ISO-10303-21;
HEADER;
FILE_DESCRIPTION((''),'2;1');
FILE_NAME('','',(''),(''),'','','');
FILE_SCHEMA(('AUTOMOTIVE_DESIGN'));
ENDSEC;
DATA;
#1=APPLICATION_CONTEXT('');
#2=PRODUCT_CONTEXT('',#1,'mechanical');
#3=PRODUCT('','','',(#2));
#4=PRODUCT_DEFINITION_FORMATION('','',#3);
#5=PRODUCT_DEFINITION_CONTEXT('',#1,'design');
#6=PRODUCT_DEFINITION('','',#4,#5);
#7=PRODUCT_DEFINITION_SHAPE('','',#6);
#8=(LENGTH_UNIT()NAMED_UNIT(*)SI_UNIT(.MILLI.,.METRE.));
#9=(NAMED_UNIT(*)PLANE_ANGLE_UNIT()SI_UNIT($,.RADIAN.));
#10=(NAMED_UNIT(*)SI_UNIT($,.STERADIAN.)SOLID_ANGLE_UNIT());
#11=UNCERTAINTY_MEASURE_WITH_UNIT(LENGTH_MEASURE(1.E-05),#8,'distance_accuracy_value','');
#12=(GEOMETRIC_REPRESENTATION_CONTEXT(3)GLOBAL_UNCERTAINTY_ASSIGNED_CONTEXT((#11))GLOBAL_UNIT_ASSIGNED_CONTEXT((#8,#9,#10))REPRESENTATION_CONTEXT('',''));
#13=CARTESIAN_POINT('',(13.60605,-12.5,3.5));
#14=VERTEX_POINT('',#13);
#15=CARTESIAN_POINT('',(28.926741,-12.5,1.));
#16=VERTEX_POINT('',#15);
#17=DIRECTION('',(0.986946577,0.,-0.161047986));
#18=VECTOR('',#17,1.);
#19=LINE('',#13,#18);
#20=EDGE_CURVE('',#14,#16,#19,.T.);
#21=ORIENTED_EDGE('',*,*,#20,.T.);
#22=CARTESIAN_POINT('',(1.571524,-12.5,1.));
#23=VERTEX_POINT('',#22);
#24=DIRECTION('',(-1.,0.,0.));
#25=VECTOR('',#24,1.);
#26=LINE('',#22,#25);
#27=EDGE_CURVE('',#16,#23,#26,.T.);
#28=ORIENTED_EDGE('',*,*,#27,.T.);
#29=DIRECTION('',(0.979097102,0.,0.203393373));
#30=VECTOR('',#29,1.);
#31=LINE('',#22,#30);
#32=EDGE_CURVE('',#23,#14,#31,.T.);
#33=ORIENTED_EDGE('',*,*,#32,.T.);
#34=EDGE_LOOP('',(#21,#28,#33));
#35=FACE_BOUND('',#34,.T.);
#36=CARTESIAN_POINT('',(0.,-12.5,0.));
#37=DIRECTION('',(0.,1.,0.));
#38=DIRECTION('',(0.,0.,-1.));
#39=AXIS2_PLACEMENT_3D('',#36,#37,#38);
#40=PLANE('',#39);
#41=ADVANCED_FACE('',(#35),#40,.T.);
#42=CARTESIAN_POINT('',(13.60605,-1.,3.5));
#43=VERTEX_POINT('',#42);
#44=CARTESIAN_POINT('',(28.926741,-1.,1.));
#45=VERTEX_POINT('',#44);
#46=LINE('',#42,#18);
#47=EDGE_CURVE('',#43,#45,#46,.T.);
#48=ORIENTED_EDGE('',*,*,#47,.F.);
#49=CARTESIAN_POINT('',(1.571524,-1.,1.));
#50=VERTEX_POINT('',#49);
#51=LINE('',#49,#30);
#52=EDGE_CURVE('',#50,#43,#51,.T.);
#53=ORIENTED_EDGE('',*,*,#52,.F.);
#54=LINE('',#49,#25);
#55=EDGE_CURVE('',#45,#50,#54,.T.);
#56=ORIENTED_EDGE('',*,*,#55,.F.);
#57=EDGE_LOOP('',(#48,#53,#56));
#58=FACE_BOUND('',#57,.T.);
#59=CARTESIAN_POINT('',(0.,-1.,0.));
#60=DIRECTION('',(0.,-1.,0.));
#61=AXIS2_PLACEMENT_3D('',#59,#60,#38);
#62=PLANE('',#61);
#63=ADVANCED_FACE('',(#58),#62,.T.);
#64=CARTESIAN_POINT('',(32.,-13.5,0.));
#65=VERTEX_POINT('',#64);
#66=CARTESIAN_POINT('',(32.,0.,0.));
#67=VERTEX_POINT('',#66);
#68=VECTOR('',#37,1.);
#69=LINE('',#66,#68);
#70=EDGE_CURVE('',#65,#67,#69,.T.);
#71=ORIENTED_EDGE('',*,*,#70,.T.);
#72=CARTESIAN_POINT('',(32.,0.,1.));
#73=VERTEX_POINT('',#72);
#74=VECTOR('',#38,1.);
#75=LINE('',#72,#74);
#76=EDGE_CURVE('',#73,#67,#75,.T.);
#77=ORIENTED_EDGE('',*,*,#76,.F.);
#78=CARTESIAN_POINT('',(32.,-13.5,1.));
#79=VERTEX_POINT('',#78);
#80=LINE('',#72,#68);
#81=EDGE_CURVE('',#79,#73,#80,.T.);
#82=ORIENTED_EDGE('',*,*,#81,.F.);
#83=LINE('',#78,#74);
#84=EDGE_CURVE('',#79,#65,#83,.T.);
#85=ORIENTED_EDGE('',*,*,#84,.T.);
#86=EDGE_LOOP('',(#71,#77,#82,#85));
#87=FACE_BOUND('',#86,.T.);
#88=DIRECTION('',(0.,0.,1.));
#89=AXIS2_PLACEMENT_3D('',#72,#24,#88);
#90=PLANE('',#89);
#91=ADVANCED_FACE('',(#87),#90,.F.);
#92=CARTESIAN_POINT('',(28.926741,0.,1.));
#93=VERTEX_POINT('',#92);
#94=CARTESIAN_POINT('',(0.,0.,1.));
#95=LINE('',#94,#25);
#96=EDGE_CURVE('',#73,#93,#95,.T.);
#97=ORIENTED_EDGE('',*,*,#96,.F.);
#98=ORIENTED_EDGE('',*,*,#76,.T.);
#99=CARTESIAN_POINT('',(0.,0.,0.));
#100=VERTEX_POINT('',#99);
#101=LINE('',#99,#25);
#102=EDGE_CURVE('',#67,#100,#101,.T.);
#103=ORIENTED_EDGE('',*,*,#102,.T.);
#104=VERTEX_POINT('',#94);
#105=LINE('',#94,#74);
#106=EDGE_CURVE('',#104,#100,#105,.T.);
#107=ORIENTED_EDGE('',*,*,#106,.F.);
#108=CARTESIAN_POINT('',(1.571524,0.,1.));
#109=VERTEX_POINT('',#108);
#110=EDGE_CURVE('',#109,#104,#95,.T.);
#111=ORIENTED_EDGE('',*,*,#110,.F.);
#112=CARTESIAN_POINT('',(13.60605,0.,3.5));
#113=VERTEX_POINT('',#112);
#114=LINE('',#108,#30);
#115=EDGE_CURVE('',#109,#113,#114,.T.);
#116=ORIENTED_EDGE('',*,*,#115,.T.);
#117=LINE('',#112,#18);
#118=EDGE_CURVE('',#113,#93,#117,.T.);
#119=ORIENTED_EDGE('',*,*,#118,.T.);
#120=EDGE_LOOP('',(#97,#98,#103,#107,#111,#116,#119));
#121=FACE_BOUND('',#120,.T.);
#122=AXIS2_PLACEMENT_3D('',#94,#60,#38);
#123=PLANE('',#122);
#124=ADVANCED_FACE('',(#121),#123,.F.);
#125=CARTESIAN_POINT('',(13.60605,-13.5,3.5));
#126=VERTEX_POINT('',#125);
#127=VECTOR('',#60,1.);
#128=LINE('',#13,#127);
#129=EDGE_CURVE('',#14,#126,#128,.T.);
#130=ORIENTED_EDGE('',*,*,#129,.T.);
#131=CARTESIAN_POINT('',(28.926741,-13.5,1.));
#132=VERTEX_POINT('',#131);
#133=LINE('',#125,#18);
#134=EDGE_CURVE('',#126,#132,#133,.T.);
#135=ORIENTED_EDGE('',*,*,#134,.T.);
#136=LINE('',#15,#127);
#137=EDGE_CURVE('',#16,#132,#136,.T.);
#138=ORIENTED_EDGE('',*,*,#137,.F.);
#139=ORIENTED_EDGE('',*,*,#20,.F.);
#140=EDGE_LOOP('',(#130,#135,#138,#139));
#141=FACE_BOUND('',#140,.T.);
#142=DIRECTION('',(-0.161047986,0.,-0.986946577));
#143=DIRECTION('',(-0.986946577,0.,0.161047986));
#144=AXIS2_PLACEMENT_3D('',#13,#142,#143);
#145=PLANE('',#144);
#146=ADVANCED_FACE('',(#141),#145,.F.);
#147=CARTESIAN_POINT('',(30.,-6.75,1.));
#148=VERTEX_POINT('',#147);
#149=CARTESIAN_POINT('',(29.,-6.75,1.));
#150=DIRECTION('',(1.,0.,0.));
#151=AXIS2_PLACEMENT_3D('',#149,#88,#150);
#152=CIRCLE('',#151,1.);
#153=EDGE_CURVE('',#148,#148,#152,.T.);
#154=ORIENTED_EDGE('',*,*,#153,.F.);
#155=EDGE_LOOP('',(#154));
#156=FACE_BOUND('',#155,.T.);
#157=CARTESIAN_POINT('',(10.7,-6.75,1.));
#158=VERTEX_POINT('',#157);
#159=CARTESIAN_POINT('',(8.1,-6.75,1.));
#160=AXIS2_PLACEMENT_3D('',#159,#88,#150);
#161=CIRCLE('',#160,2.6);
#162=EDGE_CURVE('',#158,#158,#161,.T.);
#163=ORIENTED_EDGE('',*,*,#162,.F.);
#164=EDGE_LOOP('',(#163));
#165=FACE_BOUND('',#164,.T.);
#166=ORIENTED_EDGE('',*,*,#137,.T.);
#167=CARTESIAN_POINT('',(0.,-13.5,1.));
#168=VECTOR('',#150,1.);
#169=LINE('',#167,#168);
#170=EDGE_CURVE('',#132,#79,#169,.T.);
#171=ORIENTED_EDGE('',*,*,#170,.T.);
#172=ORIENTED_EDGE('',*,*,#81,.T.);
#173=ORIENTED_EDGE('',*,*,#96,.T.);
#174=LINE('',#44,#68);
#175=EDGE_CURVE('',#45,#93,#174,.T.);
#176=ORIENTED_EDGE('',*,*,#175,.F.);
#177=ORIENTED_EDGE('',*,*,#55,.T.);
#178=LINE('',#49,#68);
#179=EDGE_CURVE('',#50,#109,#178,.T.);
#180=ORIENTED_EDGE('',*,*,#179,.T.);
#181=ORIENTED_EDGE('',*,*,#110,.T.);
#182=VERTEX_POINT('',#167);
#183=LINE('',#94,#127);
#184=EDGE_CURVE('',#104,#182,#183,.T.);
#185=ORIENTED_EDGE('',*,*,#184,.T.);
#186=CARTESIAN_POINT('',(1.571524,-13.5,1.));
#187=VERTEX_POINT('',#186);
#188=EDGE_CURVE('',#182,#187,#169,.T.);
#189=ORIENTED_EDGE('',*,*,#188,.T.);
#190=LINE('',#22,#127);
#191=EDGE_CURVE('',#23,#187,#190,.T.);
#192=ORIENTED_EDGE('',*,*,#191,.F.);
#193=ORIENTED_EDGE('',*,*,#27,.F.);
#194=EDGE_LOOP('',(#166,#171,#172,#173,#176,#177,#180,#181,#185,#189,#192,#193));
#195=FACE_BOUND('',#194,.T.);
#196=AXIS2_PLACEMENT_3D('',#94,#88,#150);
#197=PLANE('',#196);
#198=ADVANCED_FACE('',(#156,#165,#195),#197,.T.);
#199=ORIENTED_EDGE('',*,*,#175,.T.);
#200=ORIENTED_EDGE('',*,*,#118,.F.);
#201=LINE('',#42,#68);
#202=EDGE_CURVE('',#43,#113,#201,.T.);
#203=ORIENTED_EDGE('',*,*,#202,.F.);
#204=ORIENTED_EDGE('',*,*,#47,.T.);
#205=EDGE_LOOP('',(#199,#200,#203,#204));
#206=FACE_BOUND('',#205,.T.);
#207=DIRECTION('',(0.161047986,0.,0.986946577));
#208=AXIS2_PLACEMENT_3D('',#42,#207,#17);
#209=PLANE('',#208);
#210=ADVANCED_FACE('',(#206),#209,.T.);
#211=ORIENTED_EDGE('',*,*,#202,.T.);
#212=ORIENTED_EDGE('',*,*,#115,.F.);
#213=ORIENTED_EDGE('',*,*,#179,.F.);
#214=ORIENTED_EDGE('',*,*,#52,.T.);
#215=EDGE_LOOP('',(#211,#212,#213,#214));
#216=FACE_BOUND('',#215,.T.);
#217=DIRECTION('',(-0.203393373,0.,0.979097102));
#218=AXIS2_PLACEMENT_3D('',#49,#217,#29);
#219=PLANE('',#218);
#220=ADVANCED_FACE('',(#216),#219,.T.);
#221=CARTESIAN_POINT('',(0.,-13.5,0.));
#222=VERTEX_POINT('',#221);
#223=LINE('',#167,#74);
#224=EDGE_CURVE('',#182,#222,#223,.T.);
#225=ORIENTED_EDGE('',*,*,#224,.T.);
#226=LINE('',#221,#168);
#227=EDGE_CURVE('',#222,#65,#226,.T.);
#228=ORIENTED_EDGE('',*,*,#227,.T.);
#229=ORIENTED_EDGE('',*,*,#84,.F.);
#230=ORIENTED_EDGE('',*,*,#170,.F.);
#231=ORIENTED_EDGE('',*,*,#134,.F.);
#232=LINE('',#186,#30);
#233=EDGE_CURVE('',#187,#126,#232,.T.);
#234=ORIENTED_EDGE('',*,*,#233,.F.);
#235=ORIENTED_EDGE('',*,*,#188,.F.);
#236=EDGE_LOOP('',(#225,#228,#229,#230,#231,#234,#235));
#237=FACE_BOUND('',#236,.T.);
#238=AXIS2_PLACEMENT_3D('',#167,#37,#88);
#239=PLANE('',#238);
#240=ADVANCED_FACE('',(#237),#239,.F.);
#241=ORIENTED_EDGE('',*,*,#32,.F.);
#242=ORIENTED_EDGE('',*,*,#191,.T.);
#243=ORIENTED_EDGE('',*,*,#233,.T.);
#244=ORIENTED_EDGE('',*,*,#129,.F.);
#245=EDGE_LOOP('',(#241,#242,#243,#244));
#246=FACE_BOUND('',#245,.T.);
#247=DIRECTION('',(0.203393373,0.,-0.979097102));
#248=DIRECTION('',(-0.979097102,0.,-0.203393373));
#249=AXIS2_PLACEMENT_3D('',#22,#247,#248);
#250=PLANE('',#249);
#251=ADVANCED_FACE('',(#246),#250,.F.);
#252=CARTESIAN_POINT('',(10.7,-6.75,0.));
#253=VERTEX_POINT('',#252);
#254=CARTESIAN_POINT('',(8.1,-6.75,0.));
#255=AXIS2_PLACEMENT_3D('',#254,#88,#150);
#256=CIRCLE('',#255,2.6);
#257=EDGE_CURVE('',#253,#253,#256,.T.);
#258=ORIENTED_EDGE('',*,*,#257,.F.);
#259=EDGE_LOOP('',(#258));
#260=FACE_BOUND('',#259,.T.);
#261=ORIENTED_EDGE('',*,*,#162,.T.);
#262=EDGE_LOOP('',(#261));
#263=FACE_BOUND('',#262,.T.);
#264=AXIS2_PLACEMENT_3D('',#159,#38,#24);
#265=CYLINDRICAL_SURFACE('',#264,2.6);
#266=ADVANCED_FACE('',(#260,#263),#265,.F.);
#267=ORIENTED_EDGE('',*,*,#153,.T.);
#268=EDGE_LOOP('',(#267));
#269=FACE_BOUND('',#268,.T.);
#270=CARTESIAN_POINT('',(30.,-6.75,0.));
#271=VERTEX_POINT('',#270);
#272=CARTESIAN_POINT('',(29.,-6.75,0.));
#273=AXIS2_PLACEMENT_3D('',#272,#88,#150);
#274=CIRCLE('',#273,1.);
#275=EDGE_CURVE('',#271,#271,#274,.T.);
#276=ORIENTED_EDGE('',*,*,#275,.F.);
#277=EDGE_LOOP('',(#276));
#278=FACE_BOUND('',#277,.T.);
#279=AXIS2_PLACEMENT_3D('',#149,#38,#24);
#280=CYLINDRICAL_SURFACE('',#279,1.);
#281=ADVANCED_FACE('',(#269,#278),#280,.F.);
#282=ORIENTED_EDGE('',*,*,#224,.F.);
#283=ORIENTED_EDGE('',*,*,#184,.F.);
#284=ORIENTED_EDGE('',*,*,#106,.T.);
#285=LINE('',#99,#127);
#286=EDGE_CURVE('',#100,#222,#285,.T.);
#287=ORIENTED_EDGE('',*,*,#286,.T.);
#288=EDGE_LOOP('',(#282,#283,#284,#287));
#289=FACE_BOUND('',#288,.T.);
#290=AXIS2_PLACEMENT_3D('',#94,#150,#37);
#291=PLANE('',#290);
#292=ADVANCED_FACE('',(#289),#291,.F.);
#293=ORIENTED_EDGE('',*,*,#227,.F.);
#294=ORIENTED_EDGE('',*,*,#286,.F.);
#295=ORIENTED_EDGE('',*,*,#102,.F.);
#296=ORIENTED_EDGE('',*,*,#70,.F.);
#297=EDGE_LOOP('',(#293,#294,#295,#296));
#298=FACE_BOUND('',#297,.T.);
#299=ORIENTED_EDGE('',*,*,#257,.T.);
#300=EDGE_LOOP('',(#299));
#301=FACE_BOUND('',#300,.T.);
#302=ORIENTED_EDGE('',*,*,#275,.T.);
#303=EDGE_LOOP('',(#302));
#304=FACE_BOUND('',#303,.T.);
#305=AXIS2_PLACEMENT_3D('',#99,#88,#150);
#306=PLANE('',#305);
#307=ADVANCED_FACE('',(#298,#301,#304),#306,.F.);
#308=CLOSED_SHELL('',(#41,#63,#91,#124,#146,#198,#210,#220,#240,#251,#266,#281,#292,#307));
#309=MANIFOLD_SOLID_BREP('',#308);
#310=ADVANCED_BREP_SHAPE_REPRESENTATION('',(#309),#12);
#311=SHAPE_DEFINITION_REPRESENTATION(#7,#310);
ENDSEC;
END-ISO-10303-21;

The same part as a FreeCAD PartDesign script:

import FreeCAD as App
import Part
import Sketcher

V = App.Vector
Q = App.Units.Quantity


def add_polygon(sketch, points):
    """Adds a closed chain of lines whose ends are joined by coincident constraints."""
    first, n = sketch.GeometryCount, len(points)
    for a, b in zip(points, points[1:] + points[:1]):
        sketch.addGeometry(Part.LineSegment(App.Vector(*a, 0), App.Vector(*b, 0)), False)
    for i in range(n):
        sketch.addConstraint(Sketcher.Constraint("Coincident", first + i, 2, first + (i + 1) % n, 1))

doc = App.newDocument("Part")
body = doc.addObject("PartDesign::Body", "Body")

sketch1 = body.newObject("Sketcher::SketchObject", "Sketch")
sketch1.AttachmentSupport = (doc.getObject("XY_Plane"), [""])
sketch1.MapMode = "FlatFace"
add_polygon(sketch1, [(0, 0), (0, -13.5), (32, -13.5), (32, 0)])
sketch1.addGeometry(Part.Circle(V(8.1, -6.75, 0), V(0, 0, 1), 2.6), False)
sketch1.addGeometry(Part.Circle(V(29, -6.75, 0), V(0, 0, 1), 1), False)
sketch1.addConstraint([
    Sketcher.Constraint("Vertical", 0),
    Sketcher.Constraint("Horizontal", 1),
    Sketcher.Constraint("Vertical", 2),
    Sketcher.Constraint("Horizontal", 3),
    Sketcher.Constraint("Coincident", 3, 2, -1, 1),
    Sketcher.Constraint("Horizontal", 4, 3, 5, 3),
    Sketcher.Constraint("Diameter", 5, Q("2 mm")),
    Sketcher.Constraint("Diameter", 4, Q("5.2 mm")),
    Sketcher.Constraint("DistanceX", 1, 1, 1, 2, Q("32 mm")),
    Sketcher.Constraint("DistanceY", 0, 2, 0, 1, Q("13.5 mm")),
    Sketcher.Constraint("DistanceX", -1, 1, 5, 3, Q("29 mm")),
    Sketcher.Constraint("DistanceX", -1, 1, 4, 3, Q("8.1 mm")),
    Sketcher.Constraint("DistanceY", 4, 3, -1, 1, Q("6.75 mm")),
])
pad1 = body.newObject("PartDesign::Pad", "Pad")
pad1.Profile = sketch1
pad1.Length = 1

sketch2 = body.newObject("Sketcher::SketchObject", "Sketch001")
sketch2.AttachmentSupport = (doc.getObject("XZ_Plane"), [""])
sketch2.MapMode = "FlatFace"
add_polygon(sketch2, [(1.571524, 1), (13.60605, 3.5), (28.926741, 1)])
sketch2.addConstraint([
    Sketcher.Constraint("Horizontal", 2),
    Sketcher.Constraint("DistanceY", -1, 1, 1, 2, Q("1 mm")),
    Sketcher.Constraint("DistanceY", -1, 1, 0, 2, Q("3.5 mm")),
    Sketcher.Constraint("DistanceX", 2, 2, 2, 1, Q("27.355217 mm")),
    Sketcher.Constraint("DistanceX", -1, 1, 0, 2, Q("13.60605 mm")),
    Sketcher.Constraint("DistanceX", -1, 1, 1, 2, Q("28.926741 mm")),
])
pad2 = body.newObject("PartDesign::Pad", "Pad001")
pad2.Profile = sketch2
pad2.Length = 1
doc.recompute()

datumplane = body.newObject("PartDesign::Plane", "DatumPlane")
datumplane.AttachmentSupport = (doc.getObject("XZ_Plane"), [""])
datumplane.MapMode = "FlatFace"
datumplane.AttachmentOffset = App.Placement(V(0, 0, 6.75), App.Rotation())
mirrored = body.newObject("PartDesign::Mirrored", "Mirrored")
mirrored.Originals = [pad2]
mirrored.MirrorPlane = (datumplane, [""])
body.Tip = mirrored

doc.recompute()
